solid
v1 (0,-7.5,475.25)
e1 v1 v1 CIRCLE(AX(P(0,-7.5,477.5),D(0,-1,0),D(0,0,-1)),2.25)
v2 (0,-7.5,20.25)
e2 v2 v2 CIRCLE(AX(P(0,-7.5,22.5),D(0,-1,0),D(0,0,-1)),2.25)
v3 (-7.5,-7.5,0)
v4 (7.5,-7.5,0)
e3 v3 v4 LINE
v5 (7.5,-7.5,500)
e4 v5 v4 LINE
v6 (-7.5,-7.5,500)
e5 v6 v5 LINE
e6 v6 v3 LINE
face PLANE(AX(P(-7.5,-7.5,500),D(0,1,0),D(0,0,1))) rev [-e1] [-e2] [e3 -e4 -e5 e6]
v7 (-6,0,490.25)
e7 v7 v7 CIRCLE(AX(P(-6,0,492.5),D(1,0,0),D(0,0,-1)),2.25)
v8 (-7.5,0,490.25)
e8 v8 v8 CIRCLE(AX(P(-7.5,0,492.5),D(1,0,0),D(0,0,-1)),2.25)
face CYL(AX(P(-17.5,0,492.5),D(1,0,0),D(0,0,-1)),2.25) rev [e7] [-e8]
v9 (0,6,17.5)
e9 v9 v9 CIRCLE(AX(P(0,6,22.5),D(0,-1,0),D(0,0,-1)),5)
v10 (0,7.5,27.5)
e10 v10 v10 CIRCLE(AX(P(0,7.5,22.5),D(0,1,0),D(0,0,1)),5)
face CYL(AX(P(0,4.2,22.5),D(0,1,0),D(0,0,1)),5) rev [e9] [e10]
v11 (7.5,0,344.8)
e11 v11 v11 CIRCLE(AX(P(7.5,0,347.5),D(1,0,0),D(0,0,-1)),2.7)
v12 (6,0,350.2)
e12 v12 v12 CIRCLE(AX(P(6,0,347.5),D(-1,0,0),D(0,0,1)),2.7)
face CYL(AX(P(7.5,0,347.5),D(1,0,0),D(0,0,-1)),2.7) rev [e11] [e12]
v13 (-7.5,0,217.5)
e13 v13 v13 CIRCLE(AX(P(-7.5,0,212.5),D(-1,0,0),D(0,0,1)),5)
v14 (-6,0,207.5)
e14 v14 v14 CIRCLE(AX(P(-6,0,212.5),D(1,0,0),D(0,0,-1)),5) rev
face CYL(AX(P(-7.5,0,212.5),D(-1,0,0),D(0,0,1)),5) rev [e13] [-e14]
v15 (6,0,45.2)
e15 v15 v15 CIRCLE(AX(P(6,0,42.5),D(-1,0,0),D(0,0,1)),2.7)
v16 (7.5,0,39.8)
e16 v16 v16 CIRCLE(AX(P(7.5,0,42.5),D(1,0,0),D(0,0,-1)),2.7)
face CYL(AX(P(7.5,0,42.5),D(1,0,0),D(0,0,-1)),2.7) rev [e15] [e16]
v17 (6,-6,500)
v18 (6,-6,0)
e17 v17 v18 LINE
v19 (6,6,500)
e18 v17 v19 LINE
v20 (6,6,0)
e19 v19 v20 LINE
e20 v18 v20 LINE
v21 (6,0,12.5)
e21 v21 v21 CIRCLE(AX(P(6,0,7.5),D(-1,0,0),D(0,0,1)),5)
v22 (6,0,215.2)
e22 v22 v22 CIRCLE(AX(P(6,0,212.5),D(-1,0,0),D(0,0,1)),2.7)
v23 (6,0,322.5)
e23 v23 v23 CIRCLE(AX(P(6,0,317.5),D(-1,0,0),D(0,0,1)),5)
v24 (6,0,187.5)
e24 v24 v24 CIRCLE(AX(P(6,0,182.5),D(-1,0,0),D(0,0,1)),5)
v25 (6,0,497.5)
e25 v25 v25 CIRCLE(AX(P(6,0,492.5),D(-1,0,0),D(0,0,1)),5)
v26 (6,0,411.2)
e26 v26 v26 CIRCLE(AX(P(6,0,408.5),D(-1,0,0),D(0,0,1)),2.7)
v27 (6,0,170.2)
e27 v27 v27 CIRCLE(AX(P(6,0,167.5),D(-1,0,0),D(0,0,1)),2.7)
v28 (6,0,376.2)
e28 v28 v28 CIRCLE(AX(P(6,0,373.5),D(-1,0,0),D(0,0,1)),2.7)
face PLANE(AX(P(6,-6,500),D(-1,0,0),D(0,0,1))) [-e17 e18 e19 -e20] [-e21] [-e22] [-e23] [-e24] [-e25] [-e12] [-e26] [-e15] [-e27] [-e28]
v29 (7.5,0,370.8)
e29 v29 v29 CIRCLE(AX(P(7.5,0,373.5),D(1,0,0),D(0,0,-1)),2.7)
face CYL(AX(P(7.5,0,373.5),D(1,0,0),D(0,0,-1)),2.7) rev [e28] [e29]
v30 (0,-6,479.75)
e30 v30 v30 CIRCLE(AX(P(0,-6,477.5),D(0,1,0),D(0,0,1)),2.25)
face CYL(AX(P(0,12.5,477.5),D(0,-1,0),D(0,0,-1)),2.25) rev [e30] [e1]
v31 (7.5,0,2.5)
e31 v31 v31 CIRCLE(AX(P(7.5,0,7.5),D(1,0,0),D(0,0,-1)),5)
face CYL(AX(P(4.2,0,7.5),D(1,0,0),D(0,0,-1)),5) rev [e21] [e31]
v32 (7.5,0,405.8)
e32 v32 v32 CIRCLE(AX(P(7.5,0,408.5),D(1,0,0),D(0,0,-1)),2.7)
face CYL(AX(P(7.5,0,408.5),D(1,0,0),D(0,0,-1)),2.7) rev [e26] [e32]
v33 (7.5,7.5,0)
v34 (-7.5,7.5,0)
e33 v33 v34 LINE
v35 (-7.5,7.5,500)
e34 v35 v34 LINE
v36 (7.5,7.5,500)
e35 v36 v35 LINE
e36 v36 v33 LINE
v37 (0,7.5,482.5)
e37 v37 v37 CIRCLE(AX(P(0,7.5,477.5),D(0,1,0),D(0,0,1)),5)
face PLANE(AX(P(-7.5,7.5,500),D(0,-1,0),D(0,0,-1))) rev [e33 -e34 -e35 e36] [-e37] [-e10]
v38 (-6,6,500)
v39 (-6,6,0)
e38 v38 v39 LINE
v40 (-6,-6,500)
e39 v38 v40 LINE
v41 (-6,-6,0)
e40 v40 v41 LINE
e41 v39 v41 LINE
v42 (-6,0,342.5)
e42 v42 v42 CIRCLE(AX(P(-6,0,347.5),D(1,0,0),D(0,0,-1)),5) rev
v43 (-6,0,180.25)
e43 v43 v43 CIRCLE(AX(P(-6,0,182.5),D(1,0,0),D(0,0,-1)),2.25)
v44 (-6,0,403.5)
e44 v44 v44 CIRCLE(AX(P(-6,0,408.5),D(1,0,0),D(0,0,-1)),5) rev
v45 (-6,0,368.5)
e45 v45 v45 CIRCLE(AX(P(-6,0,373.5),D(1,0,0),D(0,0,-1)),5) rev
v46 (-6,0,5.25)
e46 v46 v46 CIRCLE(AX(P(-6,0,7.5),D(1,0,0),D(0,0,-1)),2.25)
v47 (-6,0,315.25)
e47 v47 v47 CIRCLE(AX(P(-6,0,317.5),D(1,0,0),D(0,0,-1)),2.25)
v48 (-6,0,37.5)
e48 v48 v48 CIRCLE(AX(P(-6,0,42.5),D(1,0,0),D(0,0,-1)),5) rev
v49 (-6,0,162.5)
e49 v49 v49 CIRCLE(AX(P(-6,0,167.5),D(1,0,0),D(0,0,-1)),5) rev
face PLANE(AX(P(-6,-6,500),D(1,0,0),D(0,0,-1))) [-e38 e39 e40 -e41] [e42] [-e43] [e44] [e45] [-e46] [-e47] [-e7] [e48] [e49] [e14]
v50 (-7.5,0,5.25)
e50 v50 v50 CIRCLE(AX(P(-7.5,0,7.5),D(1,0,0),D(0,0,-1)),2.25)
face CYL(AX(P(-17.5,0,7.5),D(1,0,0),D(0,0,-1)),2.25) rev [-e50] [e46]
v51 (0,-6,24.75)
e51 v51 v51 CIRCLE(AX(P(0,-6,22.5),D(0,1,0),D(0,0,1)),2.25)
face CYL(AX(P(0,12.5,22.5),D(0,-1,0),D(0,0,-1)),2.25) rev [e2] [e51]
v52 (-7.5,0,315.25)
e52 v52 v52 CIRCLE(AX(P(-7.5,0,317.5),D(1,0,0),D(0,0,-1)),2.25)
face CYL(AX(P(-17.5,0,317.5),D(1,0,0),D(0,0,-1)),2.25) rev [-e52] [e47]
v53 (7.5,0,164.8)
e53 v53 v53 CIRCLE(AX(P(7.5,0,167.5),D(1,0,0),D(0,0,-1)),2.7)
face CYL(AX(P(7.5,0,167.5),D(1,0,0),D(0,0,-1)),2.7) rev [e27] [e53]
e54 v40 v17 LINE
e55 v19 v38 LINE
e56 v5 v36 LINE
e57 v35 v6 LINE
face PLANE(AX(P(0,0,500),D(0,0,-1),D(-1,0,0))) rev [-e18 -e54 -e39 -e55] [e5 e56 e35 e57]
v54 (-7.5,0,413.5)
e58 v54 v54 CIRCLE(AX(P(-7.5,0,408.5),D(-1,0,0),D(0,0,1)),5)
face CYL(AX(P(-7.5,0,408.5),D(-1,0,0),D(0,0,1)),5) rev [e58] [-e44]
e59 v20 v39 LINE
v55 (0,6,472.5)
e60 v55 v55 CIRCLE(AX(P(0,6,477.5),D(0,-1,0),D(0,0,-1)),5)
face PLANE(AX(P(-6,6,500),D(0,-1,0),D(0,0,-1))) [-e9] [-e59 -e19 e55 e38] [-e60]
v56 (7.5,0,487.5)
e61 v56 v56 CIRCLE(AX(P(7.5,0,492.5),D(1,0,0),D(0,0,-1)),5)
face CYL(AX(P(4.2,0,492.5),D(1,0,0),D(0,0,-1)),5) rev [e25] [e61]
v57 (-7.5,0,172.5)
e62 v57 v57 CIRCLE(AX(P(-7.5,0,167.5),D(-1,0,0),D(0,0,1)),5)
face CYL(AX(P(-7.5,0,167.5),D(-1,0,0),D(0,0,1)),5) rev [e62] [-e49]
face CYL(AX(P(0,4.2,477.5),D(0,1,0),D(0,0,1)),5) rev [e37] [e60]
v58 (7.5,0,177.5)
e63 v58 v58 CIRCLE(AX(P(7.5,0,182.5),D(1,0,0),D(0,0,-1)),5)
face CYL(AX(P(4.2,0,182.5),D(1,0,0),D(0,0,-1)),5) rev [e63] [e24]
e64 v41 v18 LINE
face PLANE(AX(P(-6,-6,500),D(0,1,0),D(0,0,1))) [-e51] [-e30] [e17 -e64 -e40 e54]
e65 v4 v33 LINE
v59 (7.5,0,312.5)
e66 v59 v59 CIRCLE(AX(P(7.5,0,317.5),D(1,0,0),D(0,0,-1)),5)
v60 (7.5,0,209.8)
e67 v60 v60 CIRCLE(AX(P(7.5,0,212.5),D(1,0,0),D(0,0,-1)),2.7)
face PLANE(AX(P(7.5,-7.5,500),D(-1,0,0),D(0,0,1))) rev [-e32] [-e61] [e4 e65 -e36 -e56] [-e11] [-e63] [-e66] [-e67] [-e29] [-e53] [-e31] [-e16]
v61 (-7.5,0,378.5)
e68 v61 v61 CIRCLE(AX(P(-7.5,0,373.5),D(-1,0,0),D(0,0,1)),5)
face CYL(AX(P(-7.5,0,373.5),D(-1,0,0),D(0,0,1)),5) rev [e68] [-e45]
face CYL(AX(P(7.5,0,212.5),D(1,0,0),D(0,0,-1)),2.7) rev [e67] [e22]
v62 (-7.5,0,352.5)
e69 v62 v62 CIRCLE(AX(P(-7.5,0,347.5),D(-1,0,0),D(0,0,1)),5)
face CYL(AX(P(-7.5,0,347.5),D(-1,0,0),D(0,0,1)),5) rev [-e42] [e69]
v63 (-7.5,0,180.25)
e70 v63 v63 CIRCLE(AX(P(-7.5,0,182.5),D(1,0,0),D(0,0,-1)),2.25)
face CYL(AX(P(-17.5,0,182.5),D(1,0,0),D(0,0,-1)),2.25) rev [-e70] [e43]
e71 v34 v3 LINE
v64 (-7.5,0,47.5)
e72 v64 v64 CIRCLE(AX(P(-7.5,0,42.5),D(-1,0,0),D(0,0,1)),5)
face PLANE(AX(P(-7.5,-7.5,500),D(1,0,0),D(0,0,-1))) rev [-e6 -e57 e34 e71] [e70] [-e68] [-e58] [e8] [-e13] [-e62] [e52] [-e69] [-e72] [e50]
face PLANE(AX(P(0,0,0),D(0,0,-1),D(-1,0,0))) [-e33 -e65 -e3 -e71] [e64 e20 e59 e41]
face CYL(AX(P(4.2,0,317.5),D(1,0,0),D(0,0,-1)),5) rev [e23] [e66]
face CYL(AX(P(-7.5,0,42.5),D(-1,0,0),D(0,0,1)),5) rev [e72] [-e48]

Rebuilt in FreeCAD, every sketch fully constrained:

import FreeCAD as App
import Part
import Sketcher
from FreeCAD import Vector

doc = App.newDocument("Part")
body = doc.addObject("PartDesign::Body", "Body")

# Sketch on XY plane
sketch1 = doc.addObject("Sketcher::SketchObject", "Sketch")
body.addObject(sketch1)
sketch1.AttachmentSupport = (doc.XY_Plane, [""])
sketch1.MapMode = "FlatFace"
sketch1.addGeometry([
    Part.LineSegment(Vector(-8, 8, 0), Vector(-8, -8, 0)),  # 0
    Part.LineSegment(Vector(-8, -8, 0), Vector(8, -8, 0)),  # 1
    Part.LineSegment(Vector(8, -8, 0), Vector(8, 8, 0)),  # 2
    Part.LineSegment(Vector(8, 8, 0), Vector(-8, 8, 0)),  # 3
    Part.LineSegment(Vector(6, -6, 0), Vector(-6, -6, 0)),  # 4
    Part.LineSegment(Vector(-6, -6, 0), Vector(-6, 6, 0)),  # 5
    Part.LineSegment(Vector(-6, 6, 0), Vector(6, 6, 0)),  # 6
    Part.LineSegment(Vector(6, 6, 0), Vector(6, -6, 0)),  # 7
], False)
sketch1.addConstraint([
    Sketcher.Constraint("Coincident", 0, 2, 1, 1),
    Sketcher.Constraint("Coincident", 1, 2, 2, 1),
    Sketcher.Constraint("Coincident", 2, 2, 3, 1),
    Sketcher.Constraint("Coincident", 3, 2, 0, 1),
    Sketcher.Constraint("Coincident", 4, 2, 5, 1),
    Sketcher.Constraint("Coincident", 5, 2, 6, 1),
    Sketcher.Constraint("Coincident", 6, 2, 7, 1),
    Sketcher.Constraint("Coincident", 7, 2, 4, 1),
    Sketcher.Constraint("Vertical", 0),
    Sketcher.Constraint("Horizontal", 1),
    Sketcher.Constraint("Vertical", 2),
    Sketcher.Constraint("Horizontal", 3),
    Sketcher.Constraint("Horizontal", 4),
    Sketcher.Constraint("Vertical", 5),
    Sketcher.Constraint("Horizontal", 6),
    Sketcher.Constraint("Vertical", 7),
    Sketcher.Constraint("Symmetric", 0, 2, 2, 2, -1, 1),
    Sketcher.Constraint("Symmetric", 4, 2, 6, 2, -1, 1),
    Sketcher.Constraint("Equal", 3, 0),
    Sketcher.Constraint("Equal", 6, 5),
    Sketcher.Constraint("DistanceX", 1, 1, 1, 2, 15.0),
    Sketcher.Constraint("DistanceX", 4, 2, 4, 1, 12.0),
])
pad1 = doc.addObject("PartDesign::Pad", "Pad")
body.addObject(pad1)
pad1.Profile = sketch1
pad1.Length = 500

# Sketch on YZ plane
sketch2 = doc.addObject("Sketcher::SketchObject", "Sketch001")
body.addObject(sketch2)
sketch2.AttachmentSupport = (doc.YZ_Plane, [""])
sketch2.MapMode = "FlatFace"
sketch2.AttachmentOffset = App.Placement(Vector(0, 0, 7.5), App.Rotation())
sketch2.addGeometry([
    Part.Circle(Vector(0, 492.5, 0), Vector(0, 0, 1), 2.2),
    Part.Circle(Vector(0, 7.5, 0), Vector(0, 0, 1), 2.2),
    Part.Circle(Vector(0, 317.5, 0), Vector(0, 0, 1), 2.2),
    Part.Circle(Vector(0, 182.5, 0), Vector(0, 0, 1), 2.2),
], False)
sketch2.addConstraint([
    Sketcher.Constraint("Equal", 0, 1),
    Sketcher.Constraint("Equal", 1, 2),
    Sketcher.Constraint("Equal", 2, 3),
    Sketcher.Constraint("PointOnObject", 0, 3, -2),
    Sketcher.Constraint("PointOnObject", 1, 3, -2),
    Sketcher.Constraint("PointOnObject", 2, 3, -2),
    Sketcher.Constraint("PointOnObject", 3, 3, -2),
    Sketcher.Constraint("Diameter", 0, 4.5),
    Sketcher.Constraint("DistanceY", 1, 3, 0, 3, 485.0),
    Sketcher.Constraint("DistanceY", 2, 3, 0, 3, 175.0),
    Sketcher.Constraint("DistanceY", 3, 3, 2, 3, 135.0),
    Sketcher.Constraint("DistanceY", -1, 1, 0, 3, 492.5),
])
pocket1 = doc.addObject("PartDesign::Pocket", "Pocket")
body.addObject(pocket1)
pocket1.Profile = sketch2
pocket1.Length = 25

# Sketch on XZ plane
sketch3 = doc.addObject("Sketcher::SketchObject", "Sketch002")
body.addObject(sketch3)
sketch3.AttachmentSupport = (doc.XZ_Plane, [""])
sketch3.MapMode = "FlatFace"
sketch3.AttachmentOffset = App.Placement(Vector(0, 0, 7.5), App.Rotation())
sketch3.addGeometry([
    Part.Circle(Vector(0, 22.5, 0), Vector(0, 0, 1), 2.2),
    Part.Circle(Vector(0, 477.5, 0), Vector(0, 0, 1), 2.2),
], False)
sketch3.addConstraint([
    Sketcher.Constraint("Equal", 0, 1),
    Sketcher.Constraint("PointOnObject", 0, 3, -2),
    Sketcher.Constraint("PointOnObject", 1, 3, -2),
    Sketcher.Constraint("Diameter", 0, 4.5),
    Sketcher.Constraint("DistanceY", 0, 3, 1, 3, 455.0),
    Sketcher.Constraint("DistanceY", -1, 1, 0, 3, 22.5),
])
pocket2 = doc.addObject("PartDesign::Pocket", "Pocket001")
body.addObject(pocket2)
pocket2.Profile = sketch3
pocket2.Length = 20

# Sketch on YZ plane
sketch4 = doc.addObject("Sketcher::SketchObject", "Sketch003")
body.addObject(sketch4)
sketch4.AttachmentSupport = (doc.YZ_Plane, [""])
sketch4.MapMode = "FlatFace"
sketch4.AttachmentOffset = App.Placement(Vector(0, 0, 7.5), App.Rotation())
sketch4.addGeometry([
    Part.Circle(Vector(0, 492, 0), Vector(0, 0, 1), 5),
    Part.Circle(Vector(0, 8, 0), Vector(0, 0, 1), 5),
    Part.Circle(Vector(0, 182, 0), Vector(0, 0, 1), 5),
    Part.Circle(Vector(0, 318, 0), Vector(0, 0, 1), 5),
], False)
sketch4.addConstraint([
    Sketcher.Constraint("Equal", 0, 1),
    Sketcher.Constraint("Equal", 1, 2),
    Sketcher.Constraint("Equal", 2, 3),
    Sketcher.Constraint("PointOnObject", 0, 3, -2),
    Sketcher.Constraint("PointOnObject", 1, 3, -2),
    Sketcher.Constraint("PointOnObject", 2, 3, -2),
    Sketcher.Constraint("PointOnObject", 3, 3, -2),
    Sketcher.Constraint("Diameter", 0, 10.0),
    Sketcher.Constraint("DistanceY", 1, 3, 0, 3, 485.0),
    Sketcher.Constraint("DistanceY", 1, 3, 2, 3, 175.0),
    Sketcher.Constraint("DistanceY", 2, 3, 3, 3, 135.0),
    Sketcher.Constraint("DistanceY", -1, 1, 0, 3, 492.5),
])
pocket3 = doc.addObject("PartDesign::Pocket", "Pocket002")
body.addObject(pocket3)
pocket3.Profile = sketch4
pocket3.Length = 3.3

# Sketch on XZ plane
sketch5 = doc.addObject("Sketcher::SketchObject", "Sketch004")
body.addObject(sketch5)
sketch5.AttachmentSupport = (doc.XZ_Plane, [""])
sketch5.MapMode = "FlatFace"
sketch5.AttachmentOffset = App.Placement(Vector(0, 0, -7.5), App.Rotation())
sketch5.addGeometry([
    Part.Circle(Vector(0, 22, 0), Vector(0, 0, 1), 5),
    Part.Circle(Vector(0, 478, 0), Vector(0, 0, 1), 5),
], False)
sketch5.addConstraint([
    Sketcher.Constraint("Equal", 0, 1),
    Sketcher.Constraint("PointOnObject", 0, 3, -2),
    Sketcher.Constraint("PointOnObject", 1, 3, -2),
    Sketcher.Constraint("Diameter", 0, 10.0),
    Sketcher.Constraint("DistanceY", 0, 3, 1, 3, 455.0),
    Sketcher.Constraint("DistanceY", -1, 1, 0, 3, 22.5),
])
pocket4 = doc.addObject("PartDesign::Pocket", "Pocket003")
body.addObject(pocket4)
pocket4.Profile = sketch5
pocket4.Length = 3.3
pocket4.Reversed = True

# Sketch on YZ plane
sketch6 = doc.addObject("Sketcher::SketchObject", "Sketch005")
body.addObject(sketch6)
sketch6.AttachmentSupport = (doc.YZ_Plane, [""])
sketch6.MapMode = "FlatFace"
sketch6.AttachmentOffset = App.Placement(Vector(0, 0, 7.5), App.Rotation())
sketch6.addGeometry([
    Part.Circle(Vector(0, 347.5, 0), Vector(0, 0, 1), 2.7),  # 0
    Part.Circle(Vector(0, 212.5, 0), Vector(0, 0, 1), 2.7),  # 1
    Part.Circle(Vector(0, 167.5, 0), Vector(0, 0, 1), 2.7),  # 2
    Part.Circle(Vector(0, 42.5, 0), Vector(0, 0, 1), 2.7),  # 3
    Part.Circle(Vector(0, 373.5, 0), Vector(0, 0, 1), 2.7),  # 4
    Part.Circle(Vector(0, 408.5, 0), Vector(0, 0, 1), 2.7),  # 5
], False)
sketch6.addConstraint([
    Sketcher.Constraint("Equal", 0, 1),
    Sketcher.Constraint("Equal", 1, 2),
    Sketcher.Constraint("Equal", 2, 3),
    Sketcher.Constraint("Equal", 3, 4),
    Sketcher.Constraint("Equal", 4, 5),
    Sketcher.Constraint("PointOnObject", 0, 3, -2),
    Sketcher.Constraint("PointOnObject", 1, 3, -2),
    Sketcher.Constraint("PointOnObject", 2, 3, -2),
    Sketcher.Constraint("PointOnObject", 3, 3, -2),
    Sketcher.Constraint("PointOnObject", 4, 3, -2),
    Sketcher.Constraint("PointOnObject", 5, 3, -2),
    Sketcher.Constraint("Diameter", 0, 5.4),
    Sketcher.Constraint("DistanceY", 1, 3, 0, 3, 135.0),
    Sketcher.Constraint("DistanceY", 2, 3, 1, 3, 45.0),
    Sketcher.Constraint("DistanceY", 3, 3, 2, 3, 125.0),
    Sketcher.Constraint("DistanceY", 0, 3, 4, 3, 26.0),
    Sketcher.Constraint("DistanceY", 4, 3, 5, 3, 35.0),
    Sketcher.Constraint("DistanceY", -1, 1, 0, 3, 347.5),
])
doc.recompute()
hole = doc.addObject("PartDesign::Hole", "Hole")
body.addObject(hole)
hole.Profile = sketch6
hole.ThreadType = "None"
hole.Diameter = 5.4
hole.DepthType = "ThroughAll"

# Sketch on YZ plane
sketch7 = doc.addObject("Sketcher::SketchObject", "Sketch006")
body.addObject(sketch7)
sketch7.AttachmentSupport = (doc.YZ_Plane, [""])
sketch7.MapMode = "FlatFace"
sketch7.AttachmentOffset = App.Placement(Vector(0, 0, -7.5), App.Rotation())
sketch7.addGeometry([
    Part.Circle(Vector(0, 348, 0), Vector(0, 0, 1), 5),  # 0
    Part.Circle(Vector(0, 212, 0), Vector(0, 0, 1), 5),  # 1
    Part.Circle(Vector(0, 168, 0), Vector(0, 0, 1), 5),  # 2
    Part.Circle(Vector(0, 42, 0), Vector(0, 0, 1), 5),  # 3
    Part.Circle(Vector(0, 374, 0), Vector(0, 0, 1), 5),  # 4
    Part.Circle(Vector(0, 408, 0), Vector(0, 0, 1), 5),  # 5
], False)
sketch7.addConstraint([
    Sketcher.Constraint("Equal", 0, 1),
    Sketcher.Constraint("Equal", 1, 2),
    Sketcher.Constraint("Equal", 2, 3),
    Sketcher.Constraint("Equal", 3, 4),
    Sketcher.Constraint("Equal", 4, 5),
    Sketcher.Constraint("PointOnObject", 0, 3, -2),
    Sketcher.Constraint("PointOnObject", 1, 3, -2),
    Sketcher.Constraint("PointOnObject", 2, 3, -2),
    Sketcher.Constraint("PointOnObject", 3, 3, -2),
    Sketcher.Constraint("PointOnObject", 4, 3, -2),
    Sketcher.Constraint("PointOnObject", 5, 3, -2),
    Sketcher.Constraint("Diameter", 0, 10.0),
    Sketcher.Constraint("DistanceY", 1, 3, 0, 3, 135.0),
    Sketcher.Constraint("DistanceY", 2, 3, 1, 3, 45.0),
    Sketcher.Constraint("DistanceY", 3, 3, 2, 3, 125.0),
    Sketcher.Constraint("DistanceY", 0, 3, 4, 3, 26.0),
    Sketcher.Constraint("DistanceY", 4, 3, 5, 3, 35.0),
    Sketcher.Constraint("DistanceY", -1, 1, 0, 3, 347.5),
])
doc.recompute()
hole2 = doc.addObject("PartDesign::Hole", "Hole001")
body.addObject(hole2)
hole2.Profile = sketch7
hole2.ThreadType = "None"
hole2.Diameter = 10
hole2.DepthType = "Dimension"
hole2.Depth = 1.5
hole2.DrillPoint = "Angled"
hole2.DrillPointAngle = 118
hole2.Reversed = True

doc.recompute()
